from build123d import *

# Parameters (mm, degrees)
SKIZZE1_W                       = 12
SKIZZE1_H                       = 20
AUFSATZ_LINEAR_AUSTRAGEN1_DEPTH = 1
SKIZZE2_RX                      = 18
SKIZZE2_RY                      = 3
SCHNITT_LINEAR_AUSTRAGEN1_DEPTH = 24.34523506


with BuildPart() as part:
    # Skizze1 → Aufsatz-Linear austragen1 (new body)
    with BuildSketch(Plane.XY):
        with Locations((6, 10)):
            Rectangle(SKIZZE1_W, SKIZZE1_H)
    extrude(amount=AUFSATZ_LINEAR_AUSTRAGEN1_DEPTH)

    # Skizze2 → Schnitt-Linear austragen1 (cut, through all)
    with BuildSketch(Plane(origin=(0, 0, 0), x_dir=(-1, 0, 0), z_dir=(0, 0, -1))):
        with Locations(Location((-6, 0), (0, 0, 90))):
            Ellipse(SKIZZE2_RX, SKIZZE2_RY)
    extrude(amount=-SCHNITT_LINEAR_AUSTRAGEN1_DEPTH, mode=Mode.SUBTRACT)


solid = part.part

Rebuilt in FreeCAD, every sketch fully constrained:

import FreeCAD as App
import Part
import Sketcher

V = App.Vector
Q = App.Units.Quantity

doc = App.newDocument("Part")
body = doc.addObject("PartDesign::Body", "Body")

# Sketch on XY plane
sketch1 = doc.addObject("Sketcher::SketchObject", "Sketch")
body.addObject(sketch1)
sketch1.AttachmentSupport = (doc.XY_Plane, [""])
sketch1.MapMode = "FlatFace"
sketch1.addGeometry([
    Part.LineSegment(V(0, 20, 0), V(0, 0, 0)),
    Part.LineSegment(V(0, 0, 0), V(12, 0, 0)),
    Part.LineSegment(V(12, 0, 0), V(12, 20, 0)),
    Part.LineSegment(V(12, 20, 0), V(0, 20, 0)),
], False)
sketch1.addConstraint([
    Sketcher.Constraint("Coincident", 0, 2, 1, 1),
    Sketcher.Constraint("Coincident", 1, 2, 2, 1),
    Sketcher.Constraint("Coincident", 2, 2, 3, 1),
    Sketcher.Constraint("Coincident", 3, 2, 0, 1),
    Sketcher.Constraint("Vertical", 0),
    Sketcher.Constraint("Horizontal", 1),
    Sketcher.Constraint("Vertical", 2),
    Sketcher.Constraint("Horizontal", 3),
    Sketcher.Constraint("Coincident", 0, 2, -1, 1),
    Sketcher.Constraint("DistanceX", 1, 1, 1, 2, Q("12 mm")),
    Sketcher.Constraint("DistanceY", 0, 2, 0, 1, Q("20 mm")),
])
pad1 = doc.addObject("PartDesign::Pad", "Pad")
body.addObject(pad1)
pad1.Profile = sketch1
pad1.Length = 1

# Sketch on XY plane
sketch2 = doc.addObject("Sketcher::SketchObject", "Sketch001")
body.addObject(sketch2)
sketch2.AttachmentSupport = (doc.XY_Plane, [""])
sketch2.MapMode = "FlatFace"
sketch2.addGeometry(Part.Ellipse(V(6, 18, 0), V(3, 0, 0), V(6, 0, 0)), False)
sketch2.addConstraint(Sketcher.Constraint("Block", 0))
pocket1 = doc.addObject("PartDesign::Pocket", "Pocket")
body.addObject(pocket1)
pocket1.Profile = sketch2
pocket1.Type = "ThroughAll"
pocket1.Reversed = True

doc.recompute()
